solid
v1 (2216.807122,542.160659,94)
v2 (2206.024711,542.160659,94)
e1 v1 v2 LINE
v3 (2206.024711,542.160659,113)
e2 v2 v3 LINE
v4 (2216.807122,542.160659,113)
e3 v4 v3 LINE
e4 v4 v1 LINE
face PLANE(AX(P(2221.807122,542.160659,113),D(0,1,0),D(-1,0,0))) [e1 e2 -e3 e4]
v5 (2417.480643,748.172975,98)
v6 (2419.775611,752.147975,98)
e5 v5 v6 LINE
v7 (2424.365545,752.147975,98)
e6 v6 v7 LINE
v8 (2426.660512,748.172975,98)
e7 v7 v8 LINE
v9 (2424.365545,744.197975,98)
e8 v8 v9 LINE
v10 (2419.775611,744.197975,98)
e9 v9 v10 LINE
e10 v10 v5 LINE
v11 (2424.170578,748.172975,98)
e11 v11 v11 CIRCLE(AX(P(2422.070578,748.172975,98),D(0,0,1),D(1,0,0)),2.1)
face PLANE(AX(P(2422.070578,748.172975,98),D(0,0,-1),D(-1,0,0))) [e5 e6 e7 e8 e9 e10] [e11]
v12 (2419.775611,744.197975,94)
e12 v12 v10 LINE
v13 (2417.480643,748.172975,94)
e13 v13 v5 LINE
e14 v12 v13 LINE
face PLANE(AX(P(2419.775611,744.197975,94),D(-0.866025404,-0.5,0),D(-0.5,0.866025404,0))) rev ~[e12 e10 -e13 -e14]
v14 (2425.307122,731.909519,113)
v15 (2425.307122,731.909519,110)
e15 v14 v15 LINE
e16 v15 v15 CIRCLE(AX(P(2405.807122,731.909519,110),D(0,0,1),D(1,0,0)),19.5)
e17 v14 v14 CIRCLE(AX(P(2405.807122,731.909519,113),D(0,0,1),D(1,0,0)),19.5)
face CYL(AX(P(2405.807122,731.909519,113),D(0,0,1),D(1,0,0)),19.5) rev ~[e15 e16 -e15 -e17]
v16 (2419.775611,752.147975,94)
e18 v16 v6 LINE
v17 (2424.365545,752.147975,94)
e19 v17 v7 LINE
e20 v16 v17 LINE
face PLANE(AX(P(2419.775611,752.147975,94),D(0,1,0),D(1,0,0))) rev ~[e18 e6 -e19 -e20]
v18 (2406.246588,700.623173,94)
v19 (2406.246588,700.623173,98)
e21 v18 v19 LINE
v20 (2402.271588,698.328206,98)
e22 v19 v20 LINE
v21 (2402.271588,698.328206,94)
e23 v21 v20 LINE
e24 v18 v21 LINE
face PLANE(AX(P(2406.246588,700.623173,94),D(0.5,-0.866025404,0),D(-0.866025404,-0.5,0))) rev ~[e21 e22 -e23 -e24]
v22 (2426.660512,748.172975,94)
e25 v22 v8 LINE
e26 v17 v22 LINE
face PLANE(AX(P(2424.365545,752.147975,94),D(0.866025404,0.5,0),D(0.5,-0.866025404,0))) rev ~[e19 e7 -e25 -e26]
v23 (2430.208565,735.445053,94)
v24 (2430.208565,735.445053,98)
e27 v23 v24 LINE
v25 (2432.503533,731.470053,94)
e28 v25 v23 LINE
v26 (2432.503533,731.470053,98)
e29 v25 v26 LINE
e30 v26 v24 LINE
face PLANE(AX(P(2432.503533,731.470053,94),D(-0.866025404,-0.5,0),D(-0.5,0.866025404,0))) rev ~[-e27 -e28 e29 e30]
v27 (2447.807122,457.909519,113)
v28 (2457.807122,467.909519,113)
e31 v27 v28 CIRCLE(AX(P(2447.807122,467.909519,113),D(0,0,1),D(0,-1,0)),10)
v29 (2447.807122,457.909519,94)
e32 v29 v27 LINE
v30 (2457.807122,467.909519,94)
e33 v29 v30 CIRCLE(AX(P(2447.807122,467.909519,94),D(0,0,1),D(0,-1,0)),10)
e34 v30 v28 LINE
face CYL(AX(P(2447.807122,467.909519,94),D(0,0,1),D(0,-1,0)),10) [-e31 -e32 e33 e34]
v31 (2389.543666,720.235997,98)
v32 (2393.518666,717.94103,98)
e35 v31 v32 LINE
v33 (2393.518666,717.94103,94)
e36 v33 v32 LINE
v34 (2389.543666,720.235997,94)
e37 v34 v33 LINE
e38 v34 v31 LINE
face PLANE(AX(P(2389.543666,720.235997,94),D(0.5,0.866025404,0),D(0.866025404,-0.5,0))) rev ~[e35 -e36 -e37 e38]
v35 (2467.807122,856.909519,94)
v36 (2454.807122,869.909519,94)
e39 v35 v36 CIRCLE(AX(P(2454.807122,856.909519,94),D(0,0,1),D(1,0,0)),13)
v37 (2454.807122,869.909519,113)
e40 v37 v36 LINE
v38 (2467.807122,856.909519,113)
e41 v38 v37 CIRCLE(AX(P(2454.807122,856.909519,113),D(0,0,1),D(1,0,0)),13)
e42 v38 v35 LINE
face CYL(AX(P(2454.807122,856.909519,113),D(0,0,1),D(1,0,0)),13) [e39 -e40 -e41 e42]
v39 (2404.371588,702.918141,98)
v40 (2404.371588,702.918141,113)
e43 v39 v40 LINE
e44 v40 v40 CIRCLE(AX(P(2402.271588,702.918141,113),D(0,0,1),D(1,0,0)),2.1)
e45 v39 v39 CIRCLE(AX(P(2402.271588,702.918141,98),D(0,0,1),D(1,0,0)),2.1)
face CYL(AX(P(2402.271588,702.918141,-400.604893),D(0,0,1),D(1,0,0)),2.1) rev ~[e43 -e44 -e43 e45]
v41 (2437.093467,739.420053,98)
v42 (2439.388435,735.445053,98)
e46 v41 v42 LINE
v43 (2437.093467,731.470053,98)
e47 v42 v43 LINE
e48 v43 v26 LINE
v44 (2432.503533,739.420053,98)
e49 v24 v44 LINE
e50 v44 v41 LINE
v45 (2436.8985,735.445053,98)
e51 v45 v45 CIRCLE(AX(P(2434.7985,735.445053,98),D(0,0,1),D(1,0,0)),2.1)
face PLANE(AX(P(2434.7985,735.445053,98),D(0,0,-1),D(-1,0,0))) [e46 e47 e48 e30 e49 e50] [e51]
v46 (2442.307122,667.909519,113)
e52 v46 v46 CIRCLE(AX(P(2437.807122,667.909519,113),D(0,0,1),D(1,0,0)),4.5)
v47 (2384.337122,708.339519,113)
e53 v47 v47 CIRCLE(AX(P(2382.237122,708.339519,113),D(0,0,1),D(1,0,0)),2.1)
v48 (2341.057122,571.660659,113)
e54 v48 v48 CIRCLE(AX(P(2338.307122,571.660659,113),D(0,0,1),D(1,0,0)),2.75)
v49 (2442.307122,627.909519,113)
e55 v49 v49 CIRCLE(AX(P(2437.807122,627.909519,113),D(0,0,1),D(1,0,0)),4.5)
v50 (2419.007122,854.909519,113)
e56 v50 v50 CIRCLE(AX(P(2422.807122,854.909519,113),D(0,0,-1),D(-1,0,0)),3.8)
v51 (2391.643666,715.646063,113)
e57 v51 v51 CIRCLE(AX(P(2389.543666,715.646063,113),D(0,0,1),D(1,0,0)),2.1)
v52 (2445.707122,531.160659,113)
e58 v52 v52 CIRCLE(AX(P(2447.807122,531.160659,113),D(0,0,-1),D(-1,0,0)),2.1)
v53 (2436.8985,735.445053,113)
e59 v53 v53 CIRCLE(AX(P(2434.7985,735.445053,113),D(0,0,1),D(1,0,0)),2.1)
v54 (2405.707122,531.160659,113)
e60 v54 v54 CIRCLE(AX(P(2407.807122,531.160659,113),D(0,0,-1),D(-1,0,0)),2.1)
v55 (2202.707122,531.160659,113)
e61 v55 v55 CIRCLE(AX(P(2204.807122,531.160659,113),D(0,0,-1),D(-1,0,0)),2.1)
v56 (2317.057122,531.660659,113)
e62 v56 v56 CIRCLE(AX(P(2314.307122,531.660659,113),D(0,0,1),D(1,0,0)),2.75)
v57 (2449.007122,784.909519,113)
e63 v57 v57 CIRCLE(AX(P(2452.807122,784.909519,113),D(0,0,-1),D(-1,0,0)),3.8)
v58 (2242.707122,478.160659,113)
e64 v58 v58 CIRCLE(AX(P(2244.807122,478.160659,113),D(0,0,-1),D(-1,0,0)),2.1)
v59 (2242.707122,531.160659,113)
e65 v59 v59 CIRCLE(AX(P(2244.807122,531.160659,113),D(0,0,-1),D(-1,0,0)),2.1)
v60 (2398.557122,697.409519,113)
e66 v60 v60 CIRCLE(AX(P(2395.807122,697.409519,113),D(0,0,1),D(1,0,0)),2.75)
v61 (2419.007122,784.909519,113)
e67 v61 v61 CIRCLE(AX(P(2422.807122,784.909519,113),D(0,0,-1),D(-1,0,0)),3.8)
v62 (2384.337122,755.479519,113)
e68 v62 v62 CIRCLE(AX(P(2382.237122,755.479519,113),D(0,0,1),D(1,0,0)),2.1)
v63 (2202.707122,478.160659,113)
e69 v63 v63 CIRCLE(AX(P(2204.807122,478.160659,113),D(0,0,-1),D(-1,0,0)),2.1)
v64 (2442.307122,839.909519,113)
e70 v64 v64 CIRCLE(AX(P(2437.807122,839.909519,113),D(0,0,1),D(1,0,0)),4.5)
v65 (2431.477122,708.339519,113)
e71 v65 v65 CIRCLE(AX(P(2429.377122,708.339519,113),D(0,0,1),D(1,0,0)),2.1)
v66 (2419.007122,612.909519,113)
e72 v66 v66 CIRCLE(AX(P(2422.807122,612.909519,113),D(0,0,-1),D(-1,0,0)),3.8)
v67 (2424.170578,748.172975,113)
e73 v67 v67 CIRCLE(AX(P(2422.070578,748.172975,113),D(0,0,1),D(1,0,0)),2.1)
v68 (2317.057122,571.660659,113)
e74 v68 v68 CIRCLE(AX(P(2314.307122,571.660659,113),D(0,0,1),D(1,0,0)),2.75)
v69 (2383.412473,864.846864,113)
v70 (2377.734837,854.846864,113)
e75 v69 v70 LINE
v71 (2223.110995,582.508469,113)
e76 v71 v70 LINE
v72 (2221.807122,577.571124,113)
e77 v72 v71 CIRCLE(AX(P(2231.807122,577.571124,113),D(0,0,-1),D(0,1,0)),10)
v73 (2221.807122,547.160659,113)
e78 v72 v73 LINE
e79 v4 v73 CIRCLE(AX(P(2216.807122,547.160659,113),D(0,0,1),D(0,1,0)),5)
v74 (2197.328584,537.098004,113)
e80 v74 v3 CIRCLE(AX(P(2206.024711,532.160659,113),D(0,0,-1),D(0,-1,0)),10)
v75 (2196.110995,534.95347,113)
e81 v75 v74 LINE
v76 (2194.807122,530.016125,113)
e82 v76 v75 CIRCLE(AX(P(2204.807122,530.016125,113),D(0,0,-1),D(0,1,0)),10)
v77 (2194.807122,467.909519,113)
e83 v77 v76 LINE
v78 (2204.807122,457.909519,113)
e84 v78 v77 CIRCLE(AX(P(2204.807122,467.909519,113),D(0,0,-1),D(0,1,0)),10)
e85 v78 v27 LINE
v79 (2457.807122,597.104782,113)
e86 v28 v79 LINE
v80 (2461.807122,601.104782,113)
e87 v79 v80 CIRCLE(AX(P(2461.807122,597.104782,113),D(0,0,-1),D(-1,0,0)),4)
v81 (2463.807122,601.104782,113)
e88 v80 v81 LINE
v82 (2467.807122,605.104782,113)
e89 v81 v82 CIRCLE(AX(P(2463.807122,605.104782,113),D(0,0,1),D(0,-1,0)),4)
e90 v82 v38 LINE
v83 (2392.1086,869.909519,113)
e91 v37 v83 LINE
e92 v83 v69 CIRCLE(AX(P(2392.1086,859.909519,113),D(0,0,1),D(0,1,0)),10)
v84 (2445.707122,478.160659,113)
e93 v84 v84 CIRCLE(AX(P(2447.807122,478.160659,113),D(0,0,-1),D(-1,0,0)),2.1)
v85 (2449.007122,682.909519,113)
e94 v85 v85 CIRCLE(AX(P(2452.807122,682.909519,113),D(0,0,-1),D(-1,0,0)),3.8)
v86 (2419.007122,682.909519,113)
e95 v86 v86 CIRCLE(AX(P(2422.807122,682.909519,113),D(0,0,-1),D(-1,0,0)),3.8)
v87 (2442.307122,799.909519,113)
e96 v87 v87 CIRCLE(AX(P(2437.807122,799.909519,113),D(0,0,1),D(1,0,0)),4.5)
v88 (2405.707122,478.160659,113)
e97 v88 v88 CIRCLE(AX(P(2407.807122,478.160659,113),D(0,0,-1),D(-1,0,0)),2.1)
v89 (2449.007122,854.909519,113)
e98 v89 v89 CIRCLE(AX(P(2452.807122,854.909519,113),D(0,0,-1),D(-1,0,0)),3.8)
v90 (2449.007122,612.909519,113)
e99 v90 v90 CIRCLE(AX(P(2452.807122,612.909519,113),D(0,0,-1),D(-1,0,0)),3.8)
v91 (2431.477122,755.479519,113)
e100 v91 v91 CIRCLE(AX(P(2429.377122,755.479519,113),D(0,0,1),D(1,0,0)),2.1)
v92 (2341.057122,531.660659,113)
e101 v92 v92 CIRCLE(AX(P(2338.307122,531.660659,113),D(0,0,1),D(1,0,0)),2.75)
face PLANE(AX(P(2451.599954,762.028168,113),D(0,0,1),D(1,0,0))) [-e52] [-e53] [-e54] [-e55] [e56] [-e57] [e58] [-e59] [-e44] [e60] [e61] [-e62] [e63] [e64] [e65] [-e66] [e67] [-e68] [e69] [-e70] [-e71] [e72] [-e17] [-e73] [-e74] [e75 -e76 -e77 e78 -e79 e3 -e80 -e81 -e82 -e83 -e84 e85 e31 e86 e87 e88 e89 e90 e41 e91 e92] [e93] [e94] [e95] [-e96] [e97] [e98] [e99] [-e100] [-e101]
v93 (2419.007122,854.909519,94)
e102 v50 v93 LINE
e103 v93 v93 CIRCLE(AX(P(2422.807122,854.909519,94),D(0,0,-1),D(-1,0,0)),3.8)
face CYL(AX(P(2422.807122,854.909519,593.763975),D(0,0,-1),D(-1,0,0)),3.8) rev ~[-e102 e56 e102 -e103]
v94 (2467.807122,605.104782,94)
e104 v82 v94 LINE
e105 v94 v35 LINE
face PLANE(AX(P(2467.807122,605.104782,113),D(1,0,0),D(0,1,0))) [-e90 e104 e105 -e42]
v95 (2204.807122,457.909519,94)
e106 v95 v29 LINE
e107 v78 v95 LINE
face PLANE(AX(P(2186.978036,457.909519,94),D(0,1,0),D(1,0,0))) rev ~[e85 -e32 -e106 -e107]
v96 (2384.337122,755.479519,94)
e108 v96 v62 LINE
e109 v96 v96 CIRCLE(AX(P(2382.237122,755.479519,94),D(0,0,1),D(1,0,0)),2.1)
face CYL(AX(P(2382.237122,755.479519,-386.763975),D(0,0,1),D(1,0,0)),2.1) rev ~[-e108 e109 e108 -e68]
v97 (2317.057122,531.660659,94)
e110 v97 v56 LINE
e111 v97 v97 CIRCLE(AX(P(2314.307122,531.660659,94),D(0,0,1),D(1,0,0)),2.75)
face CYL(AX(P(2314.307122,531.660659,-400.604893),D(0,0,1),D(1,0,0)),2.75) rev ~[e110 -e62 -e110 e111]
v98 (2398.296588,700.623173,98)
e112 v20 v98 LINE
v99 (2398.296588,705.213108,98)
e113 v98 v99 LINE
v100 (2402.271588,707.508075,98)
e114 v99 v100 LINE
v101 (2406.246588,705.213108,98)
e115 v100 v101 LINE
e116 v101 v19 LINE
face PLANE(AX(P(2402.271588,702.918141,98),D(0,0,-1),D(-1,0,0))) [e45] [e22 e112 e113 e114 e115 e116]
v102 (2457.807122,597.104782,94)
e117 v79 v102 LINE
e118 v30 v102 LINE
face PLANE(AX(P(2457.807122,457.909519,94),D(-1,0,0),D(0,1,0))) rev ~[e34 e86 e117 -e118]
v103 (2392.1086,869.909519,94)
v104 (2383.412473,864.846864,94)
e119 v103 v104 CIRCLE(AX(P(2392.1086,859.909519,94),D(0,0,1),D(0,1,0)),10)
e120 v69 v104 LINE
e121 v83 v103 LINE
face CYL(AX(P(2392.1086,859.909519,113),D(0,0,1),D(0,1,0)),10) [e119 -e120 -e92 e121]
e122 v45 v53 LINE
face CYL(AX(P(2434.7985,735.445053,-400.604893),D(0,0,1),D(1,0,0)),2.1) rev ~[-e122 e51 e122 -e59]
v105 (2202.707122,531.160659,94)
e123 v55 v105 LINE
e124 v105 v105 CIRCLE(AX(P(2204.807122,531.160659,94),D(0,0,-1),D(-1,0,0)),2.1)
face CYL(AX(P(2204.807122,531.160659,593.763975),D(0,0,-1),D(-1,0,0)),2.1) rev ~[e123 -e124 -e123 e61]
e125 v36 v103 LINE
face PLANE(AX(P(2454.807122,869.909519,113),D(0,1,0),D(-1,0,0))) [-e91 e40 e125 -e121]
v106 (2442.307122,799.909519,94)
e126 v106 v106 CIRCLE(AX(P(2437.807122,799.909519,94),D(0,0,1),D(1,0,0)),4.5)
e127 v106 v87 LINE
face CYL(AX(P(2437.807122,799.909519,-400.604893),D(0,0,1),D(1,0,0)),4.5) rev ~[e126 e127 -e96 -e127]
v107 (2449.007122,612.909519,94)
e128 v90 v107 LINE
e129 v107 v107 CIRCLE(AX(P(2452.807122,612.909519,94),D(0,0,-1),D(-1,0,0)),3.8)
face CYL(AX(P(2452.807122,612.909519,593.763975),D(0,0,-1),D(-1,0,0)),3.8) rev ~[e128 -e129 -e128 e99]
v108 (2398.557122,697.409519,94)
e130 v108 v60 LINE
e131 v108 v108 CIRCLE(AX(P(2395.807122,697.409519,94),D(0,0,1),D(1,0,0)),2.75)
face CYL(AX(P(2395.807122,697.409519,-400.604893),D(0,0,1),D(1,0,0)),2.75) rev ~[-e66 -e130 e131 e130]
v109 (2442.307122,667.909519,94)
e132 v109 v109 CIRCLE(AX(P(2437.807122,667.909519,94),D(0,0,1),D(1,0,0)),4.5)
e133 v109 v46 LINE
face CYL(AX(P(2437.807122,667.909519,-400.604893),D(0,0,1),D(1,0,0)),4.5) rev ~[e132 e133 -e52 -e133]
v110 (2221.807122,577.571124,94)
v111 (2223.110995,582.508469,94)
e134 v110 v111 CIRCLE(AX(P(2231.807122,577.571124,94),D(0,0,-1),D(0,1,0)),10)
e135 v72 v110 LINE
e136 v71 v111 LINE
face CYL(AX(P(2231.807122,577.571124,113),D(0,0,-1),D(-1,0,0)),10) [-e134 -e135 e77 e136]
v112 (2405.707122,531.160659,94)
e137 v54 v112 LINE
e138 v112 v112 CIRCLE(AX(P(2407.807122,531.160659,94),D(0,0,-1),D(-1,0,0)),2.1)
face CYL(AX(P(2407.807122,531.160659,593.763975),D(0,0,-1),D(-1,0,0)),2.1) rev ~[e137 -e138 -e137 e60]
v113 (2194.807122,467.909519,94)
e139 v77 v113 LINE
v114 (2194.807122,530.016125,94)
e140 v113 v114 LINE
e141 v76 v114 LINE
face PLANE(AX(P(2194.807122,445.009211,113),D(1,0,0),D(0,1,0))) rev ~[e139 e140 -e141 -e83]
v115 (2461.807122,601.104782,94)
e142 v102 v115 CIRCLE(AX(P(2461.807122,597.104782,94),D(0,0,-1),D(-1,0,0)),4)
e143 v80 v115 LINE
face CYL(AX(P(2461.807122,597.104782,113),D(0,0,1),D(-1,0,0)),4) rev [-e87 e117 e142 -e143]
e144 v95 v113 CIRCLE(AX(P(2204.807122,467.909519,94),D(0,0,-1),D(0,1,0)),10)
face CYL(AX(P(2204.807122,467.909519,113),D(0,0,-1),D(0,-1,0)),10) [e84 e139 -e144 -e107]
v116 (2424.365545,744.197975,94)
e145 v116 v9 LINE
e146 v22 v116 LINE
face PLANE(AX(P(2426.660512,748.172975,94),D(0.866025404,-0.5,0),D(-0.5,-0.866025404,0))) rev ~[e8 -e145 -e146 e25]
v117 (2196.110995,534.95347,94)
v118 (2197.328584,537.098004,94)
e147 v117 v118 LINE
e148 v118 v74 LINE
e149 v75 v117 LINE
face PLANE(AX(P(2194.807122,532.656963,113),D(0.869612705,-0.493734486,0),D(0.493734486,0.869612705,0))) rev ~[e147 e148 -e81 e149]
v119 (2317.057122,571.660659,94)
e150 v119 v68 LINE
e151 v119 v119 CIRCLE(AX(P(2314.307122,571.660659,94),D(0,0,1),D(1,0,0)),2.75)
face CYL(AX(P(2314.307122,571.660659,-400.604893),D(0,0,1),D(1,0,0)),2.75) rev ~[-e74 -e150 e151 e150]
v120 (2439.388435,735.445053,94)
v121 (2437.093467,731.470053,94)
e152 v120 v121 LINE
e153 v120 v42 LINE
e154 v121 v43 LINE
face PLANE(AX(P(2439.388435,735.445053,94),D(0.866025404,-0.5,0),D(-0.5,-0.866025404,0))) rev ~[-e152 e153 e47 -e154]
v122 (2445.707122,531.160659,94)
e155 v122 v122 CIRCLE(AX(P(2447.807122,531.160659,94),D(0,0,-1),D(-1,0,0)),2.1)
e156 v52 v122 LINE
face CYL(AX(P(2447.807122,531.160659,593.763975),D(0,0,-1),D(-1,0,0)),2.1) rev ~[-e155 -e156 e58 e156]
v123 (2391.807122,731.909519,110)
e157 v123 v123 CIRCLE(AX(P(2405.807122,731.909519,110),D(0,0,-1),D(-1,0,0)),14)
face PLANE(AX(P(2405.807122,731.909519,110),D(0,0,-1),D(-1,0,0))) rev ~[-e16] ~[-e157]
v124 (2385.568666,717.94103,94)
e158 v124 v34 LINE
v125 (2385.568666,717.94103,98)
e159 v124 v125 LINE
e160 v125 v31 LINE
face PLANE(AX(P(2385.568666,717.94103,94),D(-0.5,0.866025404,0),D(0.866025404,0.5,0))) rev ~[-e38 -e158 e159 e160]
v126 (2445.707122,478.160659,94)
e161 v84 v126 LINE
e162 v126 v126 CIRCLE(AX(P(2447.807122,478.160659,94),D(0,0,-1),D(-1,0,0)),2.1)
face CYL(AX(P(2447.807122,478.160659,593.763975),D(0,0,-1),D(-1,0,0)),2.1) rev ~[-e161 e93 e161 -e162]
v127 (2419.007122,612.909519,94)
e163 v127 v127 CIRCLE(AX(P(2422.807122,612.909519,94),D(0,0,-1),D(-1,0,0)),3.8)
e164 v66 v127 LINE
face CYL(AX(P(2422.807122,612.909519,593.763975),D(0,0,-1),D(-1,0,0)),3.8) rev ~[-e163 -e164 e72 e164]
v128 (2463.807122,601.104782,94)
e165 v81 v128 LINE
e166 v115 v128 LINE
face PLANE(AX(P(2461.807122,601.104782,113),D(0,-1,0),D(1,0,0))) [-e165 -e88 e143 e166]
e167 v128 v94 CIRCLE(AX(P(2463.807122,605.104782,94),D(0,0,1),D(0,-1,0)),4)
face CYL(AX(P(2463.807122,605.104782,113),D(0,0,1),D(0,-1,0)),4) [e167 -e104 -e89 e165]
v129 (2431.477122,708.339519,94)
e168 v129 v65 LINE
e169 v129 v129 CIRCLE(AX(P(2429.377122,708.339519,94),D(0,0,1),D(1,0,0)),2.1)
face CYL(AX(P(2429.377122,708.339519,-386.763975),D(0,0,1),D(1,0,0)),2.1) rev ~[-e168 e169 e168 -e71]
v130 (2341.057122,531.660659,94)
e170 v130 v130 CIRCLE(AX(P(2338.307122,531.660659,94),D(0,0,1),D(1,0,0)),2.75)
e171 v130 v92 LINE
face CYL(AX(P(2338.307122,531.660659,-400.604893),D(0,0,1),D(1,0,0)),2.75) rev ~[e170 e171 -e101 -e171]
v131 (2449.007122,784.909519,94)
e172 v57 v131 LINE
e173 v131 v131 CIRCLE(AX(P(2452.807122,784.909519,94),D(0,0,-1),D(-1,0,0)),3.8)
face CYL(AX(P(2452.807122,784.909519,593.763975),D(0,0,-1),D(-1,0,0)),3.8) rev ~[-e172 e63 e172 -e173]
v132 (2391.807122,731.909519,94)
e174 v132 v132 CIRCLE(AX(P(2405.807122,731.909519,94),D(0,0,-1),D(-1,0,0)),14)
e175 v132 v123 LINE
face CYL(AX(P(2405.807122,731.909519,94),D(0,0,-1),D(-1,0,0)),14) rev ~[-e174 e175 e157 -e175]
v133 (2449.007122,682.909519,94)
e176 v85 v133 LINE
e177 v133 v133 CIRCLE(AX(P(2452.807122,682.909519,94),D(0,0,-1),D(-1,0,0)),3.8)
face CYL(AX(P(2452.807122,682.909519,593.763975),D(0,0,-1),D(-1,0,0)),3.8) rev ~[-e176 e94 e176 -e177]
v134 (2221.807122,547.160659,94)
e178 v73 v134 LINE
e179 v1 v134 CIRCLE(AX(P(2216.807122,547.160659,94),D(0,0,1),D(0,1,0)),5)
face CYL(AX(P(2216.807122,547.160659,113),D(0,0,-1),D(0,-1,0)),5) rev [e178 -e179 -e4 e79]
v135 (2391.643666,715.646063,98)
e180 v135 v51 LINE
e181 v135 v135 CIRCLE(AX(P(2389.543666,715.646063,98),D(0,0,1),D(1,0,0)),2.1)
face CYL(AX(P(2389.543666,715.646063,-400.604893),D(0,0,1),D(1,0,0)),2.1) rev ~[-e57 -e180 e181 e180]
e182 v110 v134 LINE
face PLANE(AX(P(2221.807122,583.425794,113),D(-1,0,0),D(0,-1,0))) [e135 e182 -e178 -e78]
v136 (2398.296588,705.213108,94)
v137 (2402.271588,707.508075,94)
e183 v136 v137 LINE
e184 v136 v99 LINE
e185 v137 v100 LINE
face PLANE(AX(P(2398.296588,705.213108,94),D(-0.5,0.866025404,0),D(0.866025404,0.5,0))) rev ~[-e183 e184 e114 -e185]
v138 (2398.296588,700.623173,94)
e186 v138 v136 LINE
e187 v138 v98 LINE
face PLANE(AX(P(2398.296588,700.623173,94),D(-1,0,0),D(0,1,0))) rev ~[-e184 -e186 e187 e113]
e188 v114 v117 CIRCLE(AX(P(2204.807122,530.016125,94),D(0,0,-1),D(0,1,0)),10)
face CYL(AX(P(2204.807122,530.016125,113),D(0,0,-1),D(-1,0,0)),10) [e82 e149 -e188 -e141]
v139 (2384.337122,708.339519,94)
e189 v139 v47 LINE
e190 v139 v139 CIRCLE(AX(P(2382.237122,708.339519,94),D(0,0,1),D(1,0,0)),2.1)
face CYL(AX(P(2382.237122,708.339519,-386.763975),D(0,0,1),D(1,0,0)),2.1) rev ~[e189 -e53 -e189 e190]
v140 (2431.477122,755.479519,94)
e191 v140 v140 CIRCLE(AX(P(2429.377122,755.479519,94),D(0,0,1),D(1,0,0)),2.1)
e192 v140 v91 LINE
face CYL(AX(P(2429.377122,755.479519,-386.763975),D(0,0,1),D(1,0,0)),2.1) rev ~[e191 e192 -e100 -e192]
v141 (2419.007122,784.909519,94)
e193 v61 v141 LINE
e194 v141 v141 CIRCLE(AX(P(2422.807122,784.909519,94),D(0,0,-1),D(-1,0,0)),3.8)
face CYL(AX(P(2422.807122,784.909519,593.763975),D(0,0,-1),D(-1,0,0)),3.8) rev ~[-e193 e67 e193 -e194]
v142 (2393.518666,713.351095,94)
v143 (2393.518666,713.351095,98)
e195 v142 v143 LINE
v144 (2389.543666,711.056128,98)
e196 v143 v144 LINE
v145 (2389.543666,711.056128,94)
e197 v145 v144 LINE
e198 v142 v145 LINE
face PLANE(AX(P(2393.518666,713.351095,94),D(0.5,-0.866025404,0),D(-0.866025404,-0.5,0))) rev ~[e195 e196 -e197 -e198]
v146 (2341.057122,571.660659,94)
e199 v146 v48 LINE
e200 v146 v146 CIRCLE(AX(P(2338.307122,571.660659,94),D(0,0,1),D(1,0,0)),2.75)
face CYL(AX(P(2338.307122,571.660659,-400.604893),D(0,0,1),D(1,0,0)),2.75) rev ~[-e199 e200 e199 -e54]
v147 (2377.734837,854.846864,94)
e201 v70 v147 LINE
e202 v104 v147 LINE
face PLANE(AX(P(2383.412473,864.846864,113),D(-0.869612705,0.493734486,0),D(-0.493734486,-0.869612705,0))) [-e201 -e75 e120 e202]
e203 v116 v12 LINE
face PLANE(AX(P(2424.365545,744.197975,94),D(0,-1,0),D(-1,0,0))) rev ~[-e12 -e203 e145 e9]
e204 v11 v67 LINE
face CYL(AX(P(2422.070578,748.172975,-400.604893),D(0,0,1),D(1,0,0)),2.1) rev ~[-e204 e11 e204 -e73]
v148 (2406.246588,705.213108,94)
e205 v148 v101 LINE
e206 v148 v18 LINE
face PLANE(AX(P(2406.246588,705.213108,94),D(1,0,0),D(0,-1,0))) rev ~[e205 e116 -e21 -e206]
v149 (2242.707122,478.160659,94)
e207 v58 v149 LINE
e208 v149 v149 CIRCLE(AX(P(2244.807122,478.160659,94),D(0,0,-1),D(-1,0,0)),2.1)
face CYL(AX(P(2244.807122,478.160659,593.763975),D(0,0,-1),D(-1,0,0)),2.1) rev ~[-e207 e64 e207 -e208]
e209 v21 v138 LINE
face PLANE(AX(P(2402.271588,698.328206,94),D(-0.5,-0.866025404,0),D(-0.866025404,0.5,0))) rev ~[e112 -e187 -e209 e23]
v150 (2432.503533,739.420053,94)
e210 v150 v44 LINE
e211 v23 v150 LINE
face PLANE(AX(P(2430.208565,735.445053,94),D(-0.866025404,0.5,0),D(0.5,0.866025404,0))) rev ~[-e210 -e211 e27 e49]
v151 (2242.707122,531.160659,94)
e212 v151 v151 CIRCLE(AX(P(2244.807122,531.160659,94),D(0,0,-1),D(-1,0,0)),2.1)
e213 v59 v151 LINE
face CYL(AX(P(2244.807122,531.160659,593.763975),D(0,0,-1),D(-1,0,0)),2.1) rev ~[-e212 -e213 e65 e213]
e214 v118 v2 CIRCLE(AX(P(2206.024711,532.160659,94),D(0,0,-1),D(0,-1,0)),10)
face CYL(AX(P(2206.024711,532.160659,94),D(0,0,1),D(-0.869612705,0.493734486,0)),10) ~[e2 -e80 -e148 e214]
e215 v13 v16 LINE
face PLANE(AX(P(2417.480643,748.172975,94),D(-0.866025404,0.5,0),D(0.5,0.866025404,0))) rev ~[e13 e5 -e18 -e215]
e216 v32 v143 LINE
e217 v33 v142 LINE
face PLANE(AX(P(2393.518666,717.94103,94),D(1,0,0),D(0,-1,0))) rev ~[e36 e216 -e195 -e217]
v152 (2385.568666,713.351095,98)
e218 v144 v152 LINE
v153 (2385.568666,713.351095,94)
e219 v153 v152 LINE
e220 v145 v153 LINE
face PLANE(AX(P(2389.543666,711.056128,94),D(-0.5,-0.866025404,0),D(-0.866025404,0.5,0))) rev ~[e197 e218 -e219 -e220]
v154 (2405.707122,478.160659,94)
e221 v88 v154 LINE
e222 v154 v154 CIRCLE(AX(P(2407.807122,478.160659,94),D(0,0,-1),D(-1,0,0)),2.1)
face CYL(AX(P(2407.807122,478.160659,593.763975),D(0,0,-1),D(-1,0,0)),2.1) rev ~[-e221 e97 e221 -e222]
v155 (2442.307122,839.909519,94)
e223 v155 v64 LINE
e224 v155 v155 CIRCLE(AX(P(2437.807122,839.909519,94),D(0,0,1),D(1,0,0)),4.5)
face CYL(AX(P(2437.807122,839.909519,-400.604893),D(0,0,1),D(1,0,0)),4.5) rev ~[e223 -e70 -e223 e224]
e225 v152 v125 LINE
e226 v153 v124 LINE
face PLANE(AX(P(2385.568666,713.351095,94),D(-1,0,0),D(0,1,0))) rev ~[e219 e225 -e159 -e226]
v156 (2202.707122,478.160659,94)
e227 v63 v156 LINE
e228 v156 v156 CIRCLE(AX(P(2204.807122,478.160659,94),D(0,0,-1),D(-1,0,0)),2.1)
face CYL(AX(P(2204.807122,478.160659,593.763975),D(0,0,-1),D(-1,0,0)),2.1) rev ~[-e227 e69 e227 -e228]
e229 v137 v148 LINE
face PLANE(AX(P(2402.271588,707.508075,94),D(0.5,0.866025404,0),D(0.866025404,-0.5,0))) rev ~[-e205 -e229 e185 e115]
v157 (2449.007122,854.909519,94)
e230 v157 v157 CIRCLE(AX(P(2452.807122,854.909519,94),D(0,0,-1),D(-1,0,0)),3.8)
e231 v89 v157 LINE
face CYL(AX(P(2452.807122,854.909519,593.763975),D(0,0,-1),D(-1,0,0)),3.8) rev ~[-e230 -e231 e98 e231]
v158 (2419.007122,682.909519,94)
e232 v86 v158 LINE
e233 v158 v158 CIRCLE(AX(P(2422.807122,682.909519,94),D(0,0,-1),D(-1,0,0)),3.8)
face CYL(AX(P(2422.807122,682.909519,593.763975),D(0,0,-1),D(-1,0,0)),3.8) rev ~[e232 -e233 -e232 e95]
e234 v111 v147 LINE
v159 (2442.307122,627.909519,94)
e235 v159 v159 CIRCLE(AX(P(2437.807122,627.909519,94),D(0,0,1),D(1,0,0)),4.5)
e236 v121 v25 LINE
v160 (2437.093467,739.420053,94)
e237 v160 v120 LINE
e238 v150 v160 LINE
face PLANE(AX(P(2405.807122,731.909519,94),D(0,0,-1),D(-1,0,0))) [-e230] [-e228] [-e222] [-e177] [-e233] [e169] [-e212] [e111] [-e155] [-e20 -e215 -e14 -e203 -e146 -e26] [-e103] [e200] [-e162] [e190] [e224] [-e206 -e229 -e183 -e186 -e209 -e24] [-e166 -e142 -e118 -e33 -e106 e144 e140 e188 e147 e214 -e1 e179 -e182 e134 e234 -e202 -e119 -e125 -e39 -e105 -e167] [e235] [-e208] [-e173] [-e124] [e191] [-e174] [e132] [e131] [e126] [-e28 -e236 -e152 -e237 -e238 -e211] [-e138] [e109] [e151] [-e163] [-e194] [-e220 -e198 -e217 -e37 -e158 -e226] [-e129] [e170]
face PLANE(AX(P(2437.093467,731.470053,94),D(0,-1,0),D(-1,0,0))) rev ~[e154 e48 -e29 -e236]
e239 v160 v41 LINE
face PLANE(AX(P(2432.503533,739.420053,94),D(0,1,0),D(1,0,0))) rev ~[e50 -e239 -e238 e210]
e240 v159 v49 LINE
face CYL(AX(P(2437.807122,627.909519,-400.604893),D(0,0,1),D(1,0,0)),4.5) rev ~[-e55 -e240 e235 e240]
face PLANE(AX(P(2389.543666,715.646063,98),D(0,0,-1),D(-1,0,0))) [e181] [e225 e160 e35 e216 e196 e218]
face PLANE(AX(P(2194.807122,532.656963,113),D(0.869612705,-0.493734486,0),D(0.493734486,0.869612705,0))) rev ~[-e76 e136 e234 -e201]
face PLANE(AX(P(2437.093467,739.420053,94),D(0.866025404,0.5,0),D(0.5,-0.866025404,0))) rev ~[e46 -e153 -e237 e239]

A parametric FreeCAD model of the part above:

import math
import FreeCAD as App
import Part
import Sketcher

V = App.Vector
Q = App.Units.Quantity


def edges_at(feature, points):
    """Names of the edges that pass closest to the given points."""
    edges = feature.Shape.Edges
    near = lambda p: min(range(len(edges)), key=lambda i: edges[i].distToShape(Part.Vertex(*p))[0])
    return sorted({f"Edge{near(p) + 1}" for p in points})


def add_polygon(sketch, points):
    """Adds a closed chain of lines whose ends are joined by coincident constraints."""
    first, n = sketch.GeometryCount, len(points)
    for a, b in zip(points, points[1:] + points[:1]):
        sketch.addGeometry(Part.LineSegment(App.Vector(*a, 0), App.Vector(*b, 0)), False)
    for i in range(n):
        sketch.addConstraint(Sketcher.Constraint("Coincident", first + i, 2, first + (i + 1) % n, 1))

doc = App.newDocument("Part")
body = doc.addObject("PartDesign::Body", "Body")

# Sketch on XY plane
sketch1 = doc.addObject("Sketcher::SketchObject", "Sketch")
body.addObject(sketch1)
sketch1.AttachmentSupport = (doc.XY_Plane, [""])
sketch1.MapMode = "FlatFace"
sketch1.AttachmentOffset = App.Placement(V(0, 0, 94), App.Rotation())
add_polygon(sketch1, [(2187, 860), (2187, 458), (2458, 458), (2458, 860)])  # lines 0-3
sketch1.addConstraint([
    Sketcher.Constraint("Vertical", 0),
    Sketcher.Constraint("Horizontal", 1),
    Sketcher.Constraint("Vertical", 2),
    Sketcher.Constraint("Horizontal", 3),
    Sketcher.Constraint("DistanceY", 0, 2, 0, 1, 402.0),
    Sketcher.Constraint("DistanceX", 1, 1, 1, 2, 270.829086),
    Sketcher.Constraint("DistanceY", -1, 1, 0, 2, 457.909519),
    Sketcher.Constraint("DistanceX", -1, 1, 1, 2, 2457.807122),
])
pad1 = doc.addObject("PartDesign::Pad", "Pad")
body.addObject(pad1)
pad1.Profile = sketch1
pad1.Length = 19

# Sketch on XY plane
sketch2 = doc.addObject("Sketcher::SketchObject", "Sketch001")
body.addObject(sketch2)
sketch2.AttachmentSupport = (doc.XY_Plane, [""])
sketch2.MapMode = "FlatFace"
sketch2.AttachmentOffset = App.Placement(V(0, 0, 113), App.Rotation())
add_polygon(sketch2, [(2187, 865), (2187, 445), (2195, 445), (2195, 865)])  # lines 0-3
sketch2.addConstraint([
    Sketcher.Constraint("Vertical", 0),
    Sketcher.Constraint("Horizontal", 1),
    Sketcher.Constraint("Vertical", 2),
    Sketcher.Constraint("Horizontal", 3),
    Sketcher.Constraint("DistanceX", 1, 1, 1, 2, 7.829086),
    Sketcher.Constraint("DistanceY", 0, 2, 0, 1, 419.560715),
    Sketcher.Constraint("DistanceY", -1, 1, 0, 2, 445.009211),
    Sketcher.Constraint("DistanceX", -1, 1, 1, 2, 2194.807122),
])
pocket1 = doc.addObject("PartDesign::Pocket", "Pocket")
body.addObject(pocket1)
pocket1.Profile = sketch2
pocket1.Length = 20

# Sketch on XY plane
sketch3 = doc.addObject("Sketcher::SketchObject", "Sketch002")
body.addObject(sketch3)
sketch3.AttachmentSupport = (doc.XY_Plane, [""])
sketch3.MapMode = "FlatFace"
sketch3.AttachmentOffset = App.Placement(V(0, 0, 113), App.Rotation())
add_polygon(sketch3, [(2195, 533), (2381, 860), (2195, 860)])  # lines 0-2
sketch3.addConstraint([
    Sketcher.Constraint("Horizontal", 1),
    Sketcher.Constraint("Vertical", 2),
    Sketcher.Constraint("DistanceX", 1, 2, 1, 1, 185.802106),
    Sketcher.Constraint("DistanceY", 2, 2, 2, 1, 327.252556),
    Sketcher.Constraint("DistanceX", -1, 1, 0, 2, 2380.609228),
    Sketcher.Constraint("DistanceY", -1, 1, 0, 2, 859.909519),
])
pocket2 = doc.addObject("PartDesign::Pocket", "Pocket001")
body.addObject(pocket2)
pocket2.Profile = sketch3
pocket2.Length = 20
doc.recompute()

fillet = doc.addObject("PartDesign::Fillet", "Fillet")
body.addObject(fillet)
fillet.Base = (pocket2, edges_at(pocket2, [
    (2194.807, 457.91, 103.5),
    (2194.807, 532.657, 103.5),
    (2380.609, 859.91, 103.5),
    (2457.807, 457.91, 103.5),
]))
fillet.Radius = 10

# Sketch on XY plane
sketch4 = doc.addObject("Sketcher::SketchObject", "Sketch003")
body.addObject(sketch4)
sketch4.AttachmentSupport = (doc.XY_Plane, [""])
sketch4.MapMode = "FlatFace"
sketch4.AttachmentOffset = App.Placement(V(0, 0, 113), App.Rotation())
sketch4.addGeometry([
    Part.Circle(V(2338.3, 531.7, 0), V(0, 0, 1), 2.1),  # 0
    Part.Circle(V(2314.3, 531.7, 0), V(0, 0, 1), 2.1),  # 1
    Part.Circle(V(2314.3, 571.7, 0), V(0, 0, 1), 2.1),  # 2
    Part.Circle(V(2338.3, 571.7, 0), V(0, 0, 1), 2.1),  # 3
    Part.Circle(V(2447.8, 531.2, 0), V(0, 0, 1), 2.1),  # 4
    Part.Circle(V(2447.8, 478.2, 0), V(0, 0, 1), 2.1),  # 5
    Part.Circle(V(2407.8, 478.2, 0), V(0, 0, 1), 2.1),  # 6
    Part.Circle(V(2407.8, 531.2, 0), V(0, 0, 1), 2.1),  # 7
    Part.Circle(V(2244.8, 531.2, 0), V(0, 0, 1), 2.1),  # 8
    Part.Circle(V(2244.8, 478.2, 0), V(0, 0, 1), 2.1),  # 9
    Part.Circle(V(2204.8, 478.2, 0), V(0, 0, 1), 2.1),  # 10
    Part.Circle(V(2204.8, 531.2, 0), V(0, 0, 1), 2.1),  # 11
], False)
sketch4.addConstraint([
    Sketcher.Constraint("Equal", 0, 1),
    Sketcher.Constraint("Equal", 1, 2),
    Sketcher.Constraint("Equal", 2, 3),
    Sketcher.Constraint("Equal", 3, 4),
    Sketcher.Constraint("Equal", 4, 5),
    Sketcher.Constraint("Equal", 5, 6),
    Sketcher.Constraint("Equal", 6, 7),
    Sketcher.Constraint("Equal", 7, 8),
    Sketcher.Constraint("Equal", 8, 9),
    Sketcher.Constraint("Equal", 9, 10),
    Sketcher.Constraint("Equal", 10, 11),
    Sketcher.Constraint("Horizontal", 0, 3, 1, 3),
    Sketcher.Constraint("Horizontal", 2, 3, 3, 3),
    Sketcher.Constraint("Horizontal", 5, 3, 6, 3),
    Sketcher.Constraint("Horizontal", 4, 3, 7, 3),
    Sketcher.Constraint("Horizontal", 7, 3, 8, 3),
    Sketcher.Constraint("Horizontal", 6, 3, 9, 3),
    Sketcher.Constraint("Horizontal", 9, 3, 10, 3),
    Sketcher.Constraint("Horizontal", 8, 3, 11, 3),
    Sketcher.Constraint("Vertical", 1, 3, 2, 3),
    Sketcher.Constraint("Vertical", 0, 3, 3, 3),
    Sketcher.Constraint("Vertical", 4, 3, 5, 3),
    Sketcher.Constraint("Vertical", 6, 3, 7, 3),
    Sketcher.Constraint("Vertical", 8, 3, 9, 3),
    Sketcher.Constraint("Vertical", 10, 3, 11, 3),
    Sketcher.Constraint("Diameter", 0, 4.2),
    Sketcher.Constraint("DistanceX", 1, 3, 0, 3, 24.0),
    Sketcher.Constraint("DistanceY", 1, 3, 2, 3, 40.0),
    Sketcher.Constraint("DistanceY", 5, 3, 4, 3, 53.0),
    Sketcher.Constraint("DistanceX", 6, 3, 5, 3, 40.0),
    Sketcher.Constraint("DistanceX", 8, 3, 7, 3, 163.0),
    Sketcher.Constraint("DistanceX", 10, 3, 9, 3, 40.0),
    Sketcher.Constraint("DistanceX", 0, 3, 4, 3, 109.5),
    Sketcher.Constraint("DistanceY", 4, 3, 0, 3, 0.5),
    Sketcher.Constraint("DistanceX", -1, 1, 0, 3, 2338.307122),
    Sketcher.Constraint("DistanceY", -1, 1, 0, 3, 531.660659),
])
doc.recompute()
hole = doc.addObject("PartDesign::Hole", "Hole")
body.addObject(hole)
hole.Profile = sketch4
hole.ThreadType = "None"
hole.Diameter = 4.2
hole.DepthType = "ThroughAll"
doc.recompute()

fillet2 = doc.addObject("PartDesign::Fillet", "Fillet001")
body.addObject(fillet2)
fillet2.Base = (hole, edges_at(hole, [(2457.807, 859.91, 103.5)]))
fillet2.Radius = 3

# Sketch on XY plane
sketch5 = doc.addObject("Sketcher::SketchObject", "Sketch004")
body.addObject(sketch5)
sketch5.AttachmentSupport = (doc.XY_Plane, [""])
sketch5.MapMode = "FlatFace"
sketch5.AttachmentOffset = App.Placement(V(0, 0, 113), App.Rotation())
sketch5.addGeometry([
    Part.Circle(V(2422.8, 612.9, 0), V(0, 0, 1), 3.8),  # 0
    Part.Circle(V(2437.8, 627.9, 0), V(0, 0, 1), 3.8),  # 1
    Part.Circle(V(2452.8, 612.9, 0), V(0, 0, 1), 3.8),  # 2
    Part.Circle(V(2452.8, 682.9, 0), V(0, 0, 1), 3.8),  # 3
    Part.Circle(V(2437.8, 667.9, 0), V(0, 0, 1), 3.8),  # 4
    Part.Circle(V(2422.8, 682.9, 0), V(0, 0, 1), 3.8),  # 5
    Part.Circle(V(2452.8, 784.9, 0), V(0, 0, 1), 3.8),  # 6
    Part.Circle(V(2422.8, 854.9, 0), V(0, 0, 1), 3.8),  # 7
    Part.Circle(V(2452.8, 854.9, 0), V(0, 0, 1), 3.8),  # 8
    Part.Circle(V(2422.8, 784.9, 0), V(0, 0, 1), 3.8),  # 9
    Part.Circle(V(2437.8, 799.9, 0), V(0, 0, 1), 3.8),  # 10
    Part.Circle(V(2437.8, 839.9, 0), V(0, 0, 1), 3.8),  # 11
], False)
sketch5.addConstraint([
    Sketcher.Constraint("Equal", 0, 1),
    Sketcher.Constraint("Equal", 1, 2),
    Sketcher.Constraint("Equal", 2, 3),
    Sketcher.Constraint("Equal", 3, 4),
    Sketcher.Constraint("Equal", 4, 5),
    Sketcher.Constraint("Equal", 5, 6),
    Sketcher.Constraint("Equal", 6, 7),
    Sketcher.Constraint("Equal", 7, 8),
    Sketcher.Constraint("Equal", 8, 9),
    Sketcher.Constraint("Equal", 9, 10),
    Sketcher.Constraint("Equal", 10, 11),
    Sketcher.Constraint("Horizontal", 0, 3, 2, 3),
    Sketcher.Constraint("Horizontal", 3, 3, 5, 3),
    Sketcher.Constraint("Horizontal", 7, 3, 8, 3),
    Sketcher.Constraint("Horizontal", 6, 3, 9, 3),
    Sketcher.Constraint("Vertical", 2, 3, 3, 3),
    Sketcher.Constraint("Vertical", 1, 3, 4, 3),
    Sketcher.Constraint("Vertical", 0, 3, 5, 3),
    Sketcher.Constraint("Vertical", 3, 3, 6, 3),
    Sketcher.Constraint("Vertical", 5, 3, 7, 3),
    Sketcher.Constraint("Vertical", 6, 3, 8, 3),
    Sketcher.Constraint("Vertical", 7, 3, 9, 3),
    Sketcher.Constraint("Vertical", 4, 3, 10, 3),
    Sketcher.Constraint("Vertical", 10, 3, 11, 3),
    Sketcher.Constraint("Diameter", 0, 7.6),
    Sketcher.Constraint("DistanceX", 0, 3, 1, 3, 15.0),
    Sketcher.Constraint("DistanceY", 0, 3, 1, 3, 15.0),
    Sketcher.Constraint("DistanceX", 1, 3, 2, 3, 15.0),
    Sketcher.Constraint("DistanceY", 1, 3, 3, 3, 55.0),
    Sketcher.Constraint("DistanceY", 4, 3, 3, 3, 15.0),
    Sketcher.Constraint("DistanceY", 3, 3, 6, 3, 102.0),
    Sketcher.Constraint("DistanceY", 6, 3, 7, 3, 70.0),
    Sketcher.Constraint("DistanceY", 6, 3, 10, 3, 15.0),
    Sketcher.Constraint("DistanceY", 11, 3, 7, 3, 15.0),
    Sketcher.Constraint("DistanceX", -1, 1, 0, 3, 2422.807122),
    Sketcher.Constraint("DistanceY", -1, 1, 0, 3, 612.909519),
])
doc.recompute()
hole2 = doc.addObject("PartDesign::Hole", "Hole001")
body.addObject(hole2)
hole2.Profile = sketch5
hole2.ThreadType = "None"
hole2.Diameter = 7.6
hole2.DepthType = "ThroughAll"

# Sketch on XY plane
sketch6 = doc.addObject("Sketcher::SketchObject", "Sketch005")
body.addObject(sketch6)
sketch6.AttachmentSupport = (doc.XY_Plane, [""])
sketch6.MapMode = "FlatFace"
sketch6.AttachmentOffset = App.Placement(V(0, 0, 113), App.Rotation())
sketch6.addGeometry(Part.Circle(V(2406, 732, 0), V(0, 0, 1), 20), False)
sketch6.addConstraint([
    Sketcher.Constraint("Diameter", 0, 39.0),
    Sketcher.Constraint("DistanceX", -1, 1, 0, 3, 2405.807122),
    Sketcher.Constraint("DistanceY", -1, 1, 0, 3, 731.909519),
])
pocket3 = doc.addObject("PartDesign::Pocket", "Pocket002")
body.addObject(pocket3)
pocket3.Profile = sketch6
pocket3.Length = 32.266789

# Sketch on XY plane
sketch7 = doc.addObject("Sketcher::SketchObject", "Sketch006")
body.addObject(sketch7)
sketch7.AttachmentSupport = (doc.XY_Plane, [""])
sketch7.MapMode = "FlatFace"
sketch7.AttachmentOffset = App.Placement(V(0, 0, 113), App.Rotation())
add_polygon(sketch7, [(2190, 542), (2222, 542), (2222, 583)])  # lines 0-2
sketch7.addConstraint([
    Sketcher.Constraint("Horizontal", 0),
    Sketcher.Constraint("Vertical", 1),
    Sketcher.Constraint("Distance", 2, 52.235229),
    Sketcher.Constraint("DistanceX", 0, 1, 0, 2, 32.026672),
    Sketcher.Constraint("DistanceX", -1, 1, 0, 2, 2221.807122),
    Sketcher.Constraint("DistanceY", -1, 1, 0, 2, 542.160659),
])
pocket4 = doc.addObject("PartDesign::Pocket", "Pocket003")
body.addObject(pocket4)
pocket4.Profile = sketch7
pocket4.Length = 20
doc.recompute()

fillet3 = doc.addObject("PartDesign::Fillet", "Fillet002")
body.addObject(fillet3)
fillet3.Base = (pocket4, edges_at(pocket4, [(2200.203, 542.161, 103.5), (2221.807, 580.212, 103.5)]))
fillet3.Radius = 10
doc.recompute()

fillet4 = doc.addObject("PartDesign::Fillet", "Fillet003")
body.addObject(fillet4)
fillet4.Base = (fillet3, edges_at(fillet3, [(2221.807, 542.161, 103.5)]))
fillet4.Radius = 5

# Sketch on XY plane
sketch8 = doc.addObject("Sketcher::SketchObject", "Sketch007")
body.addObject(sketch8)
sketch8.AttachmentSupport = (doc.XY_Plane, [""])
sketch8.MapMode = "FlatFace"
sketch8.AttachmentOffset = App.Placement(V(0, 0, 94), App.Rotation())
sketch8.addGeometry([
    Part.Circle(V(2429.4, 755.5, 0), V(0, 0, 1), 2.1),
    Part.Circle(V(2382.2, 755.5, 0), V(0, 0, 1), 2.1),
    Part.Circle(V(2429.4, 708.3, 0), V(0, 0, 1), 2.1),
    Part.Circle(V(2382.2, 708.3, 0), V(0, 0, 1), 2.1),
], False)
sketch8.addConstraint([
    Sketcher.Constraint("Equal", 0, 1),
    Sketcher.Constraint("Equal", 1, 2),
    Sketcher.Constraint("Equal", 2, 3),
    Sketcher.Constraint("Horizontal", 0, 3, 1, 3),
    Sketcher.Constraint("Horizontal", 2, 3, 3, 3),
    Sketcher.Constraint("Vertical", 0, 3, 2, 3),
    Sketcher.Constraint("Vertical", 1, 3, 3, 3),
    Sketcher.Constraint("Diameter", 0, 4.2),
    Sketcher.Constraint("DistanceX", 1, 3, 0, 3, 47.14),
    Sketcher.Constraint("DistanceY", 2, 3, 0, 3, 47.14),
    Sketcher.Constraint("DistanceX", -1, 1, 0, 3, 2429.377122),
    Sketcher.Constraint("DistanceY", -1, 1, 0, 3, 755.479519),
])
doc.recompute()
hole3 = doc.addObject("PartDesign::Hole", "Hole002")
body.addObject(hole3)
hole3.Profile = sketch8
hole3.ThreadType = "None"
hole3.Diameter = 4.2
hole3.DepthType = "ThroughAll"
hole3.Reversed = True

# Sketch on XY plane
sketch9 = doc.addObject("Sketcher::SketchObject", "Sketch008")
body.addObject(sketch9)
sketch9.AttachmentSupport = (doc.XY_Plane, [""])
sketch9.MapMode = "FlatFace"
sketch9.AttachmentOffset = App.Placement(V(0, 0, 113), App.Rotation())
sketch9.addGeometry([
    Part.LineSegment(V(2457.8, 856.9, 0), V(2457.8, 597.1, 0)),  # 0
    Part.ArcOfCircle(Part.Circle(V(2461.8, 597.1, 0), V(0, 0, 1), 4), math.radians(90), math.radians(180)),  # 1
    Part.LineSegment(V(2461.8, 601.1, 0), V(2463.8, 601.1, 0)),  # 2
    Part.ArcOfCircle(Part.Circle(V(2463.8, 605.1, 0), V(0, 0, 1), 4), math.radians(-90), math.radians(0)),  # 3
    Part.LineSegment(V(2467.8, 605.1, 0), V(2467.8, 856.9, 0)),  # 4
    Part.ArcOfCircle(Part.Circle(V(2454.8, 856.9, 0), V(0, 0, 1), 13), math.radians(0), math.radians(90)),  # 5
    Part.LineSegment(V(2454.8, 869.9, 0), V(2392.1, 869.9, 0)),  # 6
    Part.ArcOfCircle(Part.Circle(V(2392.1, 859.9, 0), V(0, 0, 1), 10), math.radians(90), math.radians(150)),  # 7
    Part.LineSegment(V(2383.4, 864.8, 0), V(2377.7, 854.8, 0)),  # 8
    Part.ArcOfCircle(Part.Circle(V(2386.4, 849.9, 0), V(0, 0, 1), 10), math.radians(90), math.radians(150)),  # 9
    Part.LineSegment(V(2386.4, 859.9, 0), V(2454.8, 859.9, 0)),  # 10
    Part.ArcOfCircle(Part.Circle(V(2454.8, 856.9, 0), V(0, 0, 1), 3), math.radians(0), math.radians(90)),  # 11
], False)
sketch9.addConstraint([
    Sketcher.Constraint("Tangent", 0, 2, 1, 2),
    Sketcher.Constraint("Tangent", 1, 1, 2, 1),
    Sketcher.Constraint("Tangent", 2, 2, 3, 1),
    Sketcher.Constraint("Tangent", 3, 2, 4, 1),
    Sketcher.Constraint("Tangent", 4, 2, 5, 1),
    Sketcher.Constraint("Tangent", 5, 2, 6, 1),
    Sketcher.Constraint("Tangent", 6, 2, 7, 1),
    Sketcher.Constraint("Tangent", 7, 2, 8, 1),
    Sketcher.Constraint("Tangent", 8, 2, 9, 2),
    Sketcher.Constraint("Tangent", 9, 1, 10, 1),
    Sketcher.Constraint("Tangent", 10, 2, 11, 2),
    Sketcher.Constraint("Tangent", 11, 1, 0, 1),
    Sketcher.Constraint("Vertical", 0),
    Sketcher.Constraint("Horizontal", 2),
    Sketcher.Constraint("Vertical", 4),
    Sketcher.Constraint("Horizontal", 6),
    Sketcher.Constraint("Horizontal", 10),
    Sketcher.Constraint("Coincident", 11, 3, 5, 3),
    Sketcher.Constraint("Equal", 1, 3),
    Sketcher.Constraint("Equal", 7, 9),
    Sketcher.Constraint("Horizontal", 7, 3, 9, 1),
    Sketcher.Constraint("Radius", 1, 4.0),
    Sketcher.Constraint("Radius", 5, 13.0),
    Sketcher.Constraint("Radius", 7, 10.0),
    Sketcher.Constraint("DistanceX", 6, 2, 6, 1, 62.698522),
    Sketcher.Constraint("DistanceX", 10, 1, 10, 2, 68.376158),
    Sketcher.Constraint("DistanceX", -1, 1, 7, 3, 2392.1086),
    Sketcher.Constraint("DistanceY", 0, 2, 0, 1, 259.804736),
    Sketcher.Constraint("DistanceY", -1, 1, 5, 3, 856.909519),
])
pad2 = doc.addObject("PartDesign::Pad", "Pad001")
body.addObject(pad2)
pad2.Profile = sketch9
pad2.Length = 19
pad2.Reversed = True

# Sketch on XY plane
sketch10 = doc.addObject("Sketcher::SketchObject", "Sketch009")
body.addObject(sketch10)
sketch10.AttachmentSupport = (doc.XY_Plane, [""])
sketch10.MapMode = "FlatFace"
sketch10.AttachmentOffset = App.Placement(V(0, 0, 94), App.Rotation())
sketch10.addGeometry([
    Part.Circle(V(2406, 732, 0), V(0, 0, 1), 20),
    Part.Circle(V(2406, 732, 0), V(0, 0, 1), 14),
], False)
sketch10.addConstraint([
    Sketcher.Constraint("Coincident", 1, 3, 0, 3),
    Sketcher.Constraint("Diameter", 0, 39.0),
    Sketcher.Constraint("Diameter", 1, 28.0),
    Sketcher.Constraint("DistanceX", -1, 1, 0, 3, 2405.807122),
    Sketcher.Constraint("DistanceY", -1, 1, 0, 3, 731.909519),
])
pad3 = doc.addObject("PartDesign::Pad", "Pad002")
body.addObject(pad3)
pad3.Profile = sketch10
pad3.Length = 16

# Sketch on XY plane
sketch11 = doc.addObject("Sketcher::SketchObject", "Sketch010")
body.addObject(sketch11)
sketch11.AttachmentSupport = (doc.XY_Plane, [""])
sketch11.MapMode = "FlatFace"
sketch11.AttachmentOffset = App.Placement(V(0, 0, 94), App.Rotation())
sketch11.addGeometry(Part.Circle(V(2395.8, 697.4, 0), V(0, 0, 1), 2.8), False)
sketch11.addConstraint([
    Sketcher.Constraint("Diameter", 0, 5.5),
    Sketcher.Constraint("DistanceX", -1, 1, 0, 3, 2395.807122),
    Sketcher.Constraint("DistanceY", -1, 1, 0, 3, 697.409519),
])
doc.recompute()
hole4 = doc.addObject("PartDesign::Hole", "Hole003")
body.addObject(hole4)
hole4.Profile = sketch11
hole4.ThreadType = "None"
hole4.Diameter = 5.5
hole4.DepthType = "ThroughAll"
hole4.Reversed = True

# Sketch on XY plane
sketch12 = doc.addObject("Sketcher::SketchObject", "Sketch011")
body.addObject(sketch12)
sketch12.AttachmentSupport = (doc.XY_Plane, [""])
sketch12.MapMode = "FlatFace"
sketch12.AttachmentOffset = App.Placement(V(0, 0, 94), App.Rotation())
sketch12.addGeometry([
    Part.Circle(V(2338.3, 531.7, 0), V(0, 0, 1), 2.8),
    Part.Circle(V(2314.3, 531.7, 0), V(0, 0, 1), 2.8),
    Part.Circle(V(2314.3, 571.7, 0), V(0, 0, 1), 2.8),
    Part.Circle(V(2338.3, 571.7, 0), V(0, 0, 1), 2.8),
], False)
sketch12.addConstraint([
    Sketcher.Constraint("Equal", 0, 1),
    Sketcher.Constraint("Equal", 1, 2),
    Sketcher.Constraint("Equal", 2, 3),
    Sketcher.Constraint("Horizontal", 0, 3, 1, 3),
    Sketcher.Constraint("Horizontal", 2, 3, 3, 3),
    Sketcher.Constraint("Vertical", 1, 3, 2, 3),
    Sketcher.Constraint("Vertical", 0, 3, 3, 3),
    Sketcher.Constraint("Diameter", 0, 5.5),
    Sketcher.Constraint("DistanceX", 1, 3, 0, 3, 24.0),
    Sketcher.Constraint("DistanceY", 1, 3, 2, 3, 40.0),
    Sketcher.Constraint("DistanceX", -1, 1, 0, 3, 2338.307122),
    Sketcher.Constraint("DistanceY", -1, 1, 0, 3, 531.660659),
])
doc.recompute()
hole5 = doc.addObject("PartDesign::Hole", "Hole004")
body.addObject(hole5)
hole5.Profile = sketch12
hole5.ThreadType = "None"
hole5.Diameter = 5.5
hole5.DepthType = "ThroughAll"
hole5.Reversed = True

# Sketch on XY plane
sketch13 = doc.addObject("Sketcher::SketchObject", "Sketch012")
body.addObject(sketch13)
sketch13.AttachmentSupport = (doc.XY_Plane, [""])
sketch13.MapMode = "FlatFace"
sketch13.AttachmentOffset = App.Placement(V(0, 0, 94), App.Rotation())
sketch13.addGeometry([
    Part.Circle(V(2437.8, 627.9, 0), V(0, 0, 1), 4.5),
    Part.Circle(V(2437.8, 667.9, 0), V(0, 0, 1), 4.5),
    Part.Circle(V(2437.8, 799.9, 0), V(0, 0, 1), 4.5),
    Part.Circle(V(2437.8, 839.9, 0), V(0, 0, 1), 4.5),
], False)
sketch13.addConstraint([
    Sketcher.Constraint("Equal", 0, 1),
    Sketcher.Constraint("Equal", 1, 2),
    Sketcher.Constraint("Equal", 2, 3),
    Sketcher.Constraint("Vertical", 0, 3, 1, 3),
    Sketcher.Constraint("Vertical", 1, 3, 2, 3),
    Sketcher.Constraint("Vertical", 2, 3, 3, 3),
    Sketcher.Constraint("Diameter", 0, 9.0),
    Sketcher.Constraint("DistanceY", 0, 3, 1, 3, 40.0),
    Sketcher.Constraint("DistanceY", 1, 3, 2, 3, 132.0),
    Sketcher.Constraint("DistanceY", 2, 3, 3, 3, 40.0),
    Sketcher.Constraint("DistanceX", -1, 1, 0, 3, 2437.807122),
    Sketcher.Constraint("DistanceY", -1, 1, 0, 3, 627.909519),
])
doc.recompute()
hole6 = doc.addObject("PartDesign::Hole", "Hole005")
body.addObject(hole6)
hole6.Profile = sketch13
hole6.ThreadType = "None"
hole6.Diameter = 9
hole6.DepthType = "ThroughAll"
hole6.Reversed = True

# Sketch on XY plane
sketch14 = doc.addObject("Sketcher::SketchObject", "Sketch013")
body.addObject(sketch14)
sketch14.AttachmentSupport = (doc.XY_Plane, [""])
sketch14.MapMode = "FlatFace"
sketch14.AttachmentOffset = App.Placement(V(0, 0, 94), App.Rotation())
sketch14.addGeometry([
    Part.Circle(V(2422.1, 748.2, 0), V(0, 0, 1), 2.1),
    Part.Circle(V(2434.8, 735.4, 0), V(0, 0, 1), 2.1),
    Part.Circle(V(2402.3, 702.9, 0), V(0, 0, 1), 2.1),
    Part.Circle(V(2389.5, 715.6, 0), V(0, 0, 1), 2.1),
], False)
sketch14.addConstraint([
    Sketcher.Constraint("Equal", 0, 1),
    Sketcher.Constraint("Equal", 1, 2),
    Sketcher.Constraint("Equal", 2, 3),
    Sketcher.Constraint("Diameter", 0, 4.2),
    Sketcher.Constraint("DistanceX", -1, 1, 1, 3, 2434.7985),
    Sketcher.Constraint("DistanceY", -1, 1, 2, 3, 702.918141),
    Sketcher.Constraint("DistanceX", 2, 3, 1, 3, 32.526912),
    Sketcher.Constraint("DistanceY", 2, 3, 1, 3, 32.526912),
    Sketcher.Constraint("DistanceX", 2, 3, 0, 3, 19.79899),
    Sketcher.Constraint("DistanceX", 3, 3, 0, 3, 32.526912),
    Sketcher.Constraint("DistanceY", 3, 3, 0, 3, 32.526912),
    Sketcher.Constraint("DistanceY", 3, 3, 1, 3, 19.79899),
])
doc.recompute()
hole7 = doc.addObject("PartDesign::Hole", "Hole006")
body.addObject(hole7)
hole7.Profile = sketch14
hole7.ThreadType = "None"
hole7.Diameter = 4.2
hole7.DepthType = "ThroughAll"
hole7.Reversed = True

# Sketch on XY plane
sketch15 = doc.addObject("Sketcher::SketchObject", "Sketch014")
body.addObject(sketch15)
sketch15.AttachmentSupport = (doc.XY_Plane, [""])
sketch15.MapMode = "FlatFace"
sketch15.AttachmentOffset = App.Placement(V(0, 0, 94), App.Rotation())
add_polygon(sketch15, [(2430.2, 735.4), (2432.5, 739.4), (2437.1, 739.4), (2439.4, 735.4), (2437.1, 731.5), (2432.5, 731.5)])  # lines 0-5
add_polygon(sketch15, [(2426.7, 748.2), (2424.4, 744.2), (2419.8, 744.2), (2417.5, 748.2), (2419.8, 752.1), (2424.4, 752.1)])  # lines 6-11
add_polygon(sketch15, [(2402.3, 707.5), (2406.2, 705.2), (2406.2, 700.6), (2402.3, 698.3), (2398.3, 700.6), (2398.3, 705.2)])  # lines 12-17
add_polygon(sketch15, [(2389.5, 720.2), (2393.5, 717.9), (2393.5, 713.4), (2389.5, 711.1), (2385.6, 713.4), (2385.6, 717.9)])  # lines 18-23
sketch15.addConstraint([
    Sketcher.Constraint("Horizontal", 1),
    Sketcher.Constraint("Horizontal", 4),
    Sketcher.Constraint("Horizontal", 7),
    Sketcher.Constraint("Horizontal", 10),
    Sketcher.Constraint("Vertical", 13),
    Sketcher.Constraint("Vertical", 16),
    Sketcher.Constraint("Vertical", 19),
    Sketcher.Constraint("Vertical", 22),
    Sketcher.Constraint("Parallel", 0, 3),
    Sketcher.Constraint("Parallel", 2, 5),
    Sketcher.Constraint("Parallel", 3, 6),
    Sketcher.Constraint("Parallel", 5, 8),
    Sketcher.Constraint("Parallel", 6, 9),
    Sketcher.Constraint("Parallel", 8, 11),
    Sketcher.Constraint("Perpendicular", 9, 12),
    Sketcher.Constraint("Perpendicular", 11, 14),
    Sketcher.Constraint("Parallel", 12, 15),
    Sketcher.Constraint("Parallel", 14, 17),
    Sketcher.Constraint("Parallel", 15, 18),
    Sketcher.Constraint("Parallel", 17, 20),
    Sketcher.Constraint("Parallel", 18, 21),
    Sketcher.Constraint("Parallel", 20, 23),
    Sketcher.Constraint("Horizontal", 2, 2, 5, 2),
    Sketcher.Constraint("Horizontal", 8, 2, 11, 2),
    Sketcher.Constraint("Horizontal", 13, 2, 15, 2),
    Sketcher.Constraint("Horizontal", 12, 2, 16, 2),
    Sketcher.Constraint("Horizontal", 19, 2, 21, 2),
    Sketcher.Constraint("Horizontal", 18, 2, 22, 2),
    Sketcher.Constraint("Vertical", 1, 2, 3, 2),
    Sketcher.Constraint("Vertical", 0, 2, 4, 2),
    Sketcher.Constraint("Vertical", 7, 2, 9, 2),
    Sketcher.Constraint("Equal", 4, 7),
    Sketcher.Constraint("Equal", 10, 13),
    Sketcher.Constraint("Equal", 16, 19),
    Sketcher.Constraint("Equal", 5, 6),
    Sketcher.Constraint("Equal", 11, 12),
    Sketcher.Constraint("Equal", 17, 18),
    Sketcher.Constraint("Angle", 0, Q("60 deg")),
    Sketcher.Constraint("DistanceY", 3, 2, 1, 2, 7.95),
    Sketcher.Constraint("DistanceX", 0, 2, 2, 2, 6.884902),
    Sketcher.Constraint("DistanceY", 13, 2, 7, 2, 43.574801),
    Sketcher.Constraint("DistanceX", -1, 1, 7, 2, 2419.775611),
    Sketcher.Constraint("DistanceY", -1, 1, 12, 2, 705.213108),
    Sketcher.Constraint("DistanceY", -1, 1, 18, 2, 717.94103),
    Sketcher.Constraint("DistanceX", 6, 2, 5, 2, 5.84302),
    Sketcher.Constraint("DistanceX", 12, 2, 3, 2, 30.846879),
    Sketcher.Constraint("DistanceY", 13, 2, 4, 2, 30.846879),
    Sketcher.Constraint("DistanceX", -1, 1, 18, 2, 2393.518666),
])
pocket5 = doc.addObject("PartDesign::Pocket", "Pocket004")
body.addObject(pocket5)
pocket5.Profile = sketch15
pocket5.Length = 4
pocket5.Reversed = True

doc.recompute()
